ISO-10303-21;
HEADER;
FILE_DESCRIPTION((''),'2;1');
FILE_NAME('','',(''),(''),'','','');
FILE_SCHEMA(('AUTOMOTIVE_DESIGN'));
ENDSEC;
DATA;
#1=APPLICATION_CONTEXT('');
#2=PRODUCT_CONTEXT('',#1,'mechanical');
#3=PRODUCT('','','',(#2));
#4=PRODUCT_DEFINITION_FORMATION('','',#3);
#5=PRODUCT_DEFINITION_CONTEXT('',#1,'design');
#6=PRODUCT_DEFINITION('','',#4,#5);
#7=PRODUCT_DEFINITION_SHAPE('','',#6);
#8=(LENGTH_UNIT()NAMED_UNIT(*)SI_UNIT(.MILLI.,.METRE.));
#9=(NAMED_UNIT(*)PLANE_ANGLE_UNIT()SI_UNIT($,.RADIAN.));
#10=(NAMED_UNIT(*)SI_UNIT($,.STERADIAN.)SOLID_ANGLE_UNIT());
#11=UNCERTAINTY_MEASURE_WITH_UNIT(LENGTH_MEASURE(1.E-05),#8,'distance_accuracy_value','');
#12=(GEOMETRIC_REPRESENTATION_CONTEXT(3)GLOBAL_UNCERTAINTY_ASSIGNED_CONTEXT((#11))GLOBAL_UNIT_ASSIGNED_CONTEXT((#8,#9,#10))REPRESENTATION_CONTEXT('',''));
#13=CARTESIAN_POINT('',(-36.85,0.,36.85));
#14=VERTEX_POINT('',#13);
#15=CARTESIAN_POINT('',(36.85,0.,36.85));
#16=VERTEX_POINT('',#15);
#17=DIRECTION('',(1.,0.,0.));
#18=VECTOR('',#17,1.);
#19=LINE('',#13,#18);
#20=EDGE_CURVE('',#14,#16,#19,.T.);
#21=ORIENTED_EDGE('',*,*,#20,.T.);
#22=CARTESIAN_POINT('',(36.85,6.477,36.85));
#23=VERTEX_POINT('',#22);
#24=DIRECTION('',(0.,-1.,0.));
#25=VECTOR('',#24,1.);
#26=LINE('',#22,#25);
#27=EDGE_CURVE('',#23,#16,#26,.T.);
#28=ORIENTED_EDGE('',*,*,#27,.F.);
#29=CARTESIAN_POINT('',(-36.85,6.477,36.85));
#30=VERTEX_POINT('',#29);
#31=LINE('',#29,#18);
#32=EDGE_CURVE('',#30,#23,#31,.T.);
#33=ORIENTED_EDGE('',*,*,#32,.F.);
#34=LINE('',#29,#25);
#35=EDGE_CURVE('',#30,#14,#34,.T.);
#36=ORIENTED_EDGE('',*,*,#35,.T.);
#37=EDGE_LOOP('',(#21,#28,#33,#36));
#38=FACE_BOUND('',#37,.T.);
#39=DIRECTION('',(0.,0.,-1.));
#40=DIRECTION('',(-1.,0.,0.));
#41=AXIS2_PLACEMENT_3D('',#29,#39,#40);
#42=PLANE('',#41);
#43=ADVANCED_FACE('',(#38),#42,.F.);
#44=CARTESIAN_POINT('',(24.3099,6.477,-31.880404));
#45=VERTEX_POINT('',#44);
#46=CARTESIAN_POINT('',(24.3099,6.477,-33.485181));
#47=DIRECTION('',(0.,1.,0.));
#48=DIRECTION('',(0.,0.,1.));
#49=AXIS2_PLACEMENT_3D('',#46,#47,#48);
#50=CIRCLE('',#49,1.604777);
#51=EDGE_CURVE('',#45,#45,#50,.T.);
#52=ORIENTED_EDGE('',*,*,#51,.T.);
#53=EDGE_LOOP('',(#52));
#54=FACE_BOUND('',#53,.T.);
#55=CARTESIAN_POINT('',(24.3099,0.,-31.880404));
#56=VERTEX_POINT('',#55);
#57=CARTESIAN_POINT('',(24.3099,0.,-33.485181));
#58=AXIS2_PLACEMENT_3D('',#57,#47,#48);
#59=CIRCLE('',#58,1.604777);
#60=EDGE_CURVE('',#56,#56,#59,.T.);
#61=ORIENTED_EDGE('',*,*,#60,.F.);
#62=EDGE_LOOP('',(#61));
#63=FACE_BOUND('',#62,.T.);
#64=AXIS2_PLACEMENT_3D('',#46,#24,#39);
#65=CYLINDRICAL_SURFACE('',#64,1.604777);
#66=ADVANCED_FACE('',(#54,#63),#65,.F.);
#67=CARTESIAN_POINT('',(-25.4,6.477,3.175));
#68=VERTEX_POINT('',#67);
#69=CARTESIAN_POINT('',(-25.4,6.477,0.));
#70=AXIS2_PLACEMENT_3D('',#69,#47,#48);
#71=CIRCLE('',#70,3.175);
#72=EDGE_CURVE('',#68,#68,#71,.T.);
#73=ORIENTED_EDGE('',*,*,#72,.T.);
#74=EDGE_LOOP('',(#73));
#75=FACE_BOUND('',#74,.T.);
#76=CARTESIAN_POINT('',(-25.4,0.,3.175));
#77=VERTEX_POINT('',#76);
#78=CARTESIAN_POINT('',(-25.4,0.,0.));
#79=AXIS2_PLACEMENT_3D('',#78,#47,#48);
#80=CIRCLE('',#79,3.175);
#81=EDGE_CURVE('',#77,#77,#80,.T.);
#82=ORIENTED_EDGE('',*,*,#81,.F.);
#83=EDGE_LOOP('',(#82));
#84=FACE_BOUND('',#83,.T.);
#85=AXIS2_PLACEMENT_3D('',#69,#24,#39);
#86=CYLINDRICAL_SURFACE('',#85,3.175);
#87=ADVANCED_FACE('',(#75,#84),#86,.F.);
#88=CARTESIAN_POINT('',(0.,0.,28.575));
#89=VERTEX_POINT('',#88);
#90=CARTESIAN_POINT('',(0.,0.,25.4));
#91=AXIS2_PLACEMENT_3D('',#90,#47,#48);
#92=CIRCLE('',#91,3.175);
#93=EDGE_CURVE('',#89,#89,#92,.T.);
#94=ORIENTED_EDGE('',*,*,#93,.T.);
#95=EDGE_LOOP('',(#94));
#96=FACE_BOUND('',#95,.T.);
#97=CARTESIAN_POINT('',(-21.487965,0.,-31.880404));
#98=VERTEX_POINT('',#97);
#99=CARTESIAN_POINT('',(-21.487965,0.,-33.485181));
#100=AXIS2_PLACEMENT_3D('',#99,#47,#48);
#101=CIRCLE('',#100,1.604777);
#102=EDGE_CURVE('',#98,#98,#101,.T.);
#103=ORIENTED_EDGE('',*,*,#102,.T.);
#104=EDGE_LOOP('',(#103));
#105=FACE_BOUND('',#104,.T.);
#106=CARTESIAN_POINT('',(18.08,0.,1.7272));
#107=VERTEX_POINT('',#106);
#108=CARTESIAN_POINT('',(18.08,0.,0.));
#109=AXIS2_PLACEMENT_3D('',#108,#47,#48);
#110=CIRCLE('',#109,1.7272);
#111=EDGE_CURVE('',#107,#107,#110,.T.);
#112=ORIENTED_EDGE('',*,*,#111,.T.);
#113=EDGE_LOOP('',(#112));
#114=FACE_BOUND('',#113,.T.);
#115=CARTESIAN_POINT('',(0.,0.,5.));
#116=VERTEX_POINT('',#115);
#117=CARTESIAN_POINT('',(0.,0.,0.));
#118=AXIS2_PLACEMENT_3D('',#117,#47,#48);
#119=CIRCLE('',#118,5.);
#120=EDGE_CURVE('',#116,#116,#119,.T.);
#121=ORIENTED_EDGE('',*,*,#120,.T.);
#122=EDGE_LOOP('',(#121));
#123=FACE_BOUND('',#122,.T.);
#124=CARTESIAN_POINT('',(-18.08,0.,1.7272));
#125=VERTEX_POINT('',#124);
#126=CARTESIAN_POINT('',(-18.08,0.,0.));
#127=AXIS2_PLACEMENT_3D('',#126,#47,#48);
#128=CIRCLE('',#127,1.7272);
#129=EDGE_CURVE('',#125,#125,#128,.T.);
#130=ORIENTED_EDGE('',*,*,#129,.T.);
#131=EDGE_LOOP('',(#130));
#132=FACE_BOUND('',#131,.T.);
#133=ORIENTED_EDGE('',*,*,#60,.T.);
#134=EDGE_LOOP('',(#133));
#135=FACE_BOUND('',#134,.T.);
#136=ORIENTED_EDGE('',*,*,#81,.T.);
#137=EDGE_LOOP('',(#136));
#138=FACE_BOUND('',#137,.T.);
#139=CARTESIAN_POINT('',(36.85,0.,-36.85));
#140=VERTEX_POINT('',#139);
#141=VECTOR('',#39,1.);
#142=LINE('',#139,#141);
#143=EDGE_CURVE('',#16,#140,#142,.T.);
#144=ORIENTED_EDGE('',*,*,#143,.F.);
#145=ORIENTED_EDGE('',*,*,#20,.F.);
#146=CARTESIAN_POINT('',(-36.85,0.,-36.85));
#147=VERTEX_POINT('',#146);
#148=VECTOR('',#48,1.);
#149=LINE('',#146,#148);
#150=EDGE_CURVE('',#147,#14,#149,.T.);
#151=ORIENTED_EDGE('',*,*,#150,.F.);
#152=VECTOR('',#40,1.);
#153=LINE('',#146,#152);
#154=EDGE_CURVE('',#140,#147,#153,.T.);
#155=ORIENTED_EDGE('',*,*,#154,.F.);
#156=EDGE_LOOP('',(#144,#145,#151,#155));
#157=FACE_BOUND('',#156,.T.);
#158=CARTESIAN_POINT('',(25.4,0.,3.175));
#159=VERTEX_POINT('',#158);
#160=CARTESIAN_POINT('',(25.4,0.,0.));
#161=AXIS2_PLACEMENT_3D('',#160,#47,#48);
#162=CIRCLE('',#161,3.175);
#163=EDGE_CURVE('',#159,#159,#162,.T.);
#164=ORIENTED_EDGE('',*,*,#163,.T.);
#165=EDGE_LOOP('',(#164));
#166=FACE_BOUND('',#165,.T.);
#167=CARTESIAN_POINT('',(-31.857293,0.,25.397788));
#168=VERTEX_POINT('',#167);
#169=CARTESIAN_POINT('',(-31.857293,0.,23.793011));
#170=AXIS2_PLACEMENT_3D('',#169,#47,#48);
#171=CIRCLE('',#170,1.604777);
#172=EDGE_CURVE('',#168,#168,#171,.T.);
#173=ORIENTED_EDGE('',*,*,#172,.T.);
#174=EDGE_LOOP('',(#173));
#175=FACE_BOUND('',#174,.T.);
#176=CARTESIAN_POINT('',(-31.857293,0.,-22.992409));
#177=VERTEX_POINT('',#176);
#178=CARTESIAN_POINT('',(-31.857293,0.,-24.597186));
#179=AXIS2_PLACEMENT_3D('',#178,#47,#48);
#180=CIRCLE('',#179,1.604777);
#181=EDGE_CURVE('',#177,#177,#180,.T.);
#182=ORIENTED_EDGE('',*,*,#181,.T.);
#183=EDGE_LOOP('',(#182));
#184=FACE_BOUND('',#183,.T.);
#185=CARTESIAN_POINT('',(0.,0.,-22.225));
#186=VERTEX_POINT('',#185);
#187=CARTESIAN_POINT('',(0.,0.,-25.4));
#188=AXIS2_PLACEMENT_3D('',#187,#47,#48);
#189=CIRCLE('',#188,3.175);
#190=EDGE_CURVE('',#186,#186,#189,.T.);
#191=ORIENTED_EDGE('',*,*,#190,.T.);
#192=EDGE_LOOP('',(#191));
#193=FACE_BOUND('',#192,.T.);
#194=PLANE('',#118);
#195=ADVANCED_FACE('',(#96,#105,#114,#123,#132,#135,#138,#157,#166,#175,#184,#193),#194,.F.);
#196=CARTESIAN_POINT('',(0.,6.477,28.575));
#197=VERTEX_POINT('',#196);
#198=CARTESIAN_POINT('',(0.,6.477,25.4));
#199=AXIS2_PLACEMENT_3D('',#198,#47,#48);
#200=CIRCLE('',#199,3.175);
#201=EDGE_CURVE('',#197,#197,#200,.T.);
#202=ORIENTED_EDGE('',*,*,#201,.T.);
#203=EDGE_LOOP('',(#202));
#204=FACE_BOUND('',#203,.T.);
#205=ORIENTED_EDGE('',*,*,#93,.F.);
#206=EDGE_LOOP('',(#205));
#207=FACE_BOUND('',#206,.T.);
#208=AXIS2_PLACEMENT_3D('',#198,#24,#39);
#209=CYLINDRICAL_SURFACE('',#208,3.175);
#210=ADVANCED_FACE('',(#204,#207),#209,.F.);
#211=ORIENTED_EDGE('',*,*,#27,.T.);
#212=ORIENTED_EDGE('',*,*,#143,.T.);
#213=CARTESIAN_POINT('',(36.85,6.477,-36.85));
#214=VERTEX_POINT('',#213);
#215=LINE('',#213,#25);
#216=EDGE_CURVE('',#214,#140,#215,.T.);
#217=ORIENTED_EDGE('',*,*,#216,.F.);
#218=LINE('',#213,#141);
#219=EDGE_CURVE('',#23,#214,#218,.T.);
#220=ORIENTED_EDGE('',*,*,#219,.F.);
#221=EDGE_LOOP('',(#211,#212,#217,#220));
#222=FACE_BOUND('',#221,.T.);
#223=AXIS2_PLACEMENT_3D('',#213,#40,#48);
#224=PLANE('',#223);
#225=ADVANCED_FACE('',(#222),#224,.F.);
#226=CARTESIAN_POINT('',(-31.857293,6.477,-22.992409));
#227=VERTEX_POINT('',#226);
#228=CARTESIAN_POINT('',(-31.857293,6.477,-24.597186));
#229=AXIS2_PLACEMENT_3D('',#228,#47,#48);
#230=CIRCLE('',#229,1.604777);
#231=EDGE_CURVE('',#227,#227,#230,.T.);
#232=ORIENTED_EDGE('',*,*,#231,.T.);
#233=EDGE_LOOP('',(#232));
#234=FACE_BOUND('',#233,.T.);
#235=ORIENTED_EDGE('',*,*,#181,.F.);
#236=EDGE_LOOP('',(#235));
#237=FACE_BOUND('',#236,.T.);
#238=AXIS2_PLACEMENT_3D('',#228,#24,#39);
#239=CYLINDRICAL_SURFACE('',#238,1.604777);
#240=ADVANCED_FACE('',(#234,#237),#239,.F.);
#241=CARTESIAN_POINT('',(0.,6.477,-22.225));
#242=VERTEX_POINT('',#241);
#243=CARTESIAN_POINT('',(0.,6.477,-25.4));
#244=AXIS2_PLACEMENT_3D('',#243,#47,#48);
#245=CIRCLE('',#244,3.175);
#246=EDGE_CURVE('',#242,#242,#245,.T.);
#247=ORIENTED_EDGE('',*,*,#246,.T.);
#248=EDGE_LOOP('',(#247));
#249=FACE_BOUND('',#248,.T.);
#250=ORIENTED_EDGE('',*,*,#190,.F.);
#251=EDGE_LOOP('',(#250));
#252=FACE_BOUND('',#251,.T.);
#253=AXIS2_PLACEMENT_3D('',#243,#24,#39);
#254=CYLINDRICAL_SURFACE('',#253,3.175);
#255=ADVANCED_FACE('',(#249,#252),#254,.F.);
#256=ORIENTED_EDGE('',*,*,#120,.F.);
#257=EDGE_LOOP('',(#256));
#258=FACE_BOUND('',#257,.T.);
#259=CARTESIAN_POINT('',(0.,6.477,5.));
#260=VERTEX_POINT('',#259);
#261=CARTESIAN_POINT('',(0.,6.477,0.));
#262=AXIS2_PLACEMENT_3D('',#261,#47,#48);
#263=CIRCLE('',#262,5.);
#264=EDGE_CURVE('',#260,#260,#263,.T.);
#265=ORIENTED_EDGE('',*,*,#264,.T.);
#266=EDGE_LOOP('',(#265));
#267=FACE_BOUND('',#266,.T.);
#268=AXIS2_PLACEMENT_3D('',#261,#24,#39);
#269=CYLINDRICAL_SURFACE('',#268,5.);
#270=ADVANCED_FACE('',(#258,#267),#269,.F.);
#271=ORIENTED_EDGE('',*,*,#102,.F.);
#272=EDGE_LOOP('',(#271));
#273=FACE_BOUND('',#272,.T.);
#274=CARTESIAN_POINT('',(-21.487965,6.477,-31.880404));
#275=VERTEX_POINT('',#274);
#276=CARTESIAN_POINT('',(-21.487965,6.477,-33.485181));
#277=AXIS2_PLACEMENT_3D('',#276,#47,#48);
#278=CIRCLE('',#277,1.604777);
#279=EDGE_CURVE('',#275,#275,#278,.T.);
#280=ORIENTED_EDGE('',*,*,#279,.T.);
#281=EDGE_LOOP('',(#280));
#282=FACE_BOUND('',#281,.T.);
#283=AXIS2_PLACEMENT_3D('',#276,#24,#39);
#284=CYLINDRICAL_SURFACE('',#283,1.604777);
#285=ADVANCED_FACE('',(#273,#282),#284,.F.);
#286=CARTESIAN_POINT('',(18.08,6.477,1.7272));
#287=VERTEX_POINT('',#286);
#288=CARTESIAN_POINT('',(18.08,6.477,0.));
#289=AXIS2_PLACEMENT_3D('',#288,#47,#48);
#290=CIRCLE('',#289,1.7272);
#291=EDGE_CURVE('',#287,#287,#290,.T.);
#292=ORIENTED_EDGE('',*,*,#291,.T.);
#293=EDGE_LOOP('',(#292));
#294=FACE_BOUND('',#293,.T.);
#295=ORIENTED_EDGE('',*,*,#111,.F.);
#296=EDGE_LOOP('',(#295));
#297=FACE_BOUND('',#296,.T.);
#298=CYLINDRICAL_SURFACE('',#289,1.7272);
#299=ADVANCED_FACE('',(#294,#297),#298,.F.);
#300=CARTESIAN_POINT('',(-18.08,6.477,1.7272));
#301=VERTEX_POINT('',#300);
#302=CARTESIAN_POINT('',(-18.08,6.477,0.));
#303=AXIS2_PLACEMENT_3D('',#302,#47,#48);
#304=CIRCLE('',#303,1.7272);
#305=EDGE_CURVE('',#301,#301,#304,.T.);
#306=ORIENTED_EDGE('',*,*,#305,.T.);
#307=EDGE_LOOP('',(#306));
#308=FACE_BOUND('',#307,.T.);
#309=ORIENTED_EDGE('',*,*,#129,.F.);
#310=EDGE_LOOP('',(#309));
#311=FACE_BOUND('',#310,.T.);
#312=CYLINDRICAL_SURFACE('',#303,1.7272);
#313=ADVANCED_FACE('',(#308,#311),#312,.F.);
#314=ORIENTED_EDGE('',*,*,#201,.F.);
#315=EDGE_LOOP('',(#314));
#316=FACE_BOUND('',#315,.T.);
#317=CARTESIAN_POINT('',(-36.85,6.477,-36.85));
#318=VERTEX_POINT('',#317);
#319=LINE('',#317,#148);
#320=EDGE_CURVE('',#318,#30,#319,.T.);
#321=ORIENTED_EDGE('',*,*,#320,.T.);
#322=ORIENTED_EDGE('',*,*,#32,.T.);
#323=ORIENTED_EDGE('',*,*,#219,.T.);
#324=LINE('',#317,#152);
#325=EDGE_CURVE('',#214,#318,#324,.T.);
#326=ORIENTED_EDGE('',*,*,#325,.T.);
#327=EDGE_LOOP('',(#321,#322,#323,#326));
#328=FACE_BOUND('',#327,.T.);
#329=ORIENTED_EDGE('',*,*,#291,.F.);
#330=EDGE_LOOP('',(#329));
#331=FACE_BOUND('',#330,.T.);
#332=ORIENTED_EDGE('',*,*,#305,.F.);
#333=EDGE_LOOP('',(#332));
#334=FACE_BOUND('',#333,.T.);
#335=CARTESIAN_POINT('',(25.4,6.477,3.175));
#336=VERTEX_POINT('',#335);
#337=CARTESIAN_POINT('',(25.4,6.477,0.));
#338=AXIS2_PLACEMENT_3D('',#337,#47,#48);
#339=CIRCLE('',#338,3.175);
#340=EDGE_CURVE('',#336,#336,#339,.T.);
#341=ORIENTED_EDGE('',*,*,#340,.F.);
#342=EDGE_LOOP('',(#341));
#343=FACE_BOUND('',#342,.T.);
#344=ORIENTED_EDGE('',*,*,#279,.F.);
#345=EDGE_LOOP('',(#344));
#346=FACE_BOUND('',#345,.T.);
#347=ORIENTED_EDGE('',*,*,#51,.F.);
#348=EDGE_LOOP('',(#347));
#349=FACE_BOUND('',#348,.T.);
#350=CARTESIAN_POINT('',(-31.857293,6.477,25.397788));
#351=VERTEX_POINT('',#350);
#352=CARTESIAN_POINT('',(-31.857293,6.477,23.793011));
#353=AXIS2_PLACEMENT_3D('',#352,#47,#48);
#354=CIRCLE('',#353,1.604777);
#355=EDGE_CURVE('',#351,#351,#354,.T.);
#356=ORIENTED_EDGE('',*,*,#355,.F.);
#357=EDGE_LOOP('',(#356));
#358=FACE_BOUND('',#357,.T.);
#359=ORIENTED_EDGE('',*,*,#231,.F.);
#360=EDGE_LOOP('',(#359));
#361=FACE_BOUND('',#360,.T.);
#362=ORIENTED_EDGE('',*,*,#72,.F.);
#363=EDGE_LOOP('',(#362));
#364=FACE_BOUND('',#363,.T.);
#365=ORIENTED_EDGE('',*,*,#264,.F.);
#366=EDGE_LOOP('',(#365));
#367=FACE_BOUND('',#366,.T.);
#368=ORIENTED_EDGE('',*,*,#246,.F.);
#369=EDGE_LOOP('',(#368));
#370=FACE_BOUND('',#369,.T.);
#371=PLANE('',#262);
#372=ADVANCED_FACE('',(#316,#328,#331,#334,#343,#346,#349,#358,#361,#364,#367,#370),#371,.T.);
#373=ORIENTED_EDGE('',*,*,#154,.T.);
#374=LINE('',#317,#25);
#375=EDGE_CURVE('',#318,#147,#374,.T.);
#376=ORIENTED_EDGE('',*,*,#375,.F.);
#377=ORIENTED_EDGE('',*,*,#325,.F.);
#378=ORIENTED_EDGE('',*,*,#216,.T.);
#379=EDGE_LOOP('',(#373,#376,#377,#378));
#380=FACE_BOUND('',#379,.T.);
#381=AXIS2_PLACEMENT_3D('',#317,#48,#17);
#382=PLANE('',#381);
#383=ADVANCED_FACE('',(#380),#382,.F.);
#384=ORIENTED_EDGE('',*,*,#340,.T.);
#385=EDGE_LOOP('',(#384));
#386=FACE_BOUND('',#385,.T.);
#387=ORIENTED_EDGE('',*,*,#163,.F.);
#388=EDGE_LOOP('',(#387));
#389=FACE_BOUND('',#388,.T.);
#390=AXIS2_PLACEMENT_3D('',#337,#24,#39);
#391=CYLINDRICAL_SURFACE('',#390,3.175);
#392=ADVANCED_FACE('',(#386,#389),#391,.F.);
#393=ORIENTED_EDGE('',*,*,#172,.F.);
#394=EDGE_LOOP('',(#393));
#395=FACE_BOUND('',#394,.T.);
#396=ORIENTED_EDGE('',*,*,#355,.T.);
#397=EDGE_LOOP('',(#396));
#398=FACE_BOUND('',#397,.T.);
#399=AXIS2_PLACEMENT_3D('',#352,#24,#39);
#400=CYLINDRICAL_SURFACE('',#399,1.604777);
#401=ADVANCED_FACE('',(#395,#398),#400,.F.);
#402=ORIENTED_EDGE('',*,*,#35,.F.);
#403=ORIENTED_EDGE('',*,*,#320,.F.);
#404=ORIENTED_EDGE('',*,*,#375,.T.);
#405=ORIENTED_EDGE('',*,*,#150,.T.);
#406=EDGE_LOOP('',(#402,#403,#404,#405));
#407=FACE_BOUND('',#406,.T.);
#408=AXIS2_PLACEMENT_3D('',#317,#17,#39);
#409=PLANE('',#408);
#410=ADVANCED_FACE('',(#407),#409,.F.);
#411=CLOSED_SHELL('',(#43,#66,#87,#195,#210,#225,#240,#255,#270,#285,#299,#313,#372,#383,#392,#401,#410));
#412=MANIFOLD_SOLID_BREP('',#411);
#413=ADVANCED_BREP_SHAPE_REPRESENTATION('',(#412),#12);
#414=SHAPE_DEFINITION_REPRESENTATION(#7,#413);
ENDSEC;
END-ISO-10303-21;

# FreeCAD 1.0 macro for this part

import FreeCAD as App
import Part
import Sketcher
from FreeCAD import Vector
Q = App.Units.Quantity

doc = App.newDocument("Part")
body = doc.addObject("PartDesign::Body", "Body")

# Sketch on XZ plane
sketch1 = body.newObject("Sketcher::SketchObject", "Sketch")
sketch1.AttachmentSupport = (doc.getObject("XZ_Plane"), [""])
sketch1.MapMode = "FlatFace"
sketch1.addGeometry([
    Part.LineSegment(Vector(-36.85, -36.85, 0), Vector(-36.85, 36.85, 0)),  # 0
    Part.LineSegment(Vector(-36.85, 36.85, 0), Vector(36.85, 36.85, 0)),  # 1
    Part.LineSegment(Vector(36.85, 36.85, 0), Vector(36.85, -36.85, 0)),  # 2
    Part.LineSegment(Vector(36.85, -36.85, 0), Vector(-36.85, -36.85, 0)),  # 3
    Part.Circle(Vector(-31.857293, 23.793011, 0), Vector(0, 0, 1), 1.604777),  # 4
    Part.Circle(Vector(-25.4, 0, 0), Vector(0, 0, 1), 3.175),  # 5
    Part.Circle(Vector(0, 25.4, 0), Vector(0, 0, 1), 3.175),  # 6
    Part.Circle(Vector(0, 0, 0), Vector(0, 0, 1), 5),  # 7
    Part.Circle(Vector(25.4, 0, 0), Vector(0, 0, 1), 3.175),  # 8
    Part.Circle(Vector(-31.857293, -24.597186, 0), Vector(0, 0, 1), 1.604777),  # 9
    Part.Circle(Vector(-21.487965, -33.485181, 0), Vector(0, 0, 1), 1.604777),  # 10
    Part.Circle(Vector(0, -25.4, 0), Vector(0, 0, 1), 3.175),  # 11
    Part.Circle(Vector(24.3099, -33.485181, 0), Vector(0, 0, 1), 1.604777),  # 12
], False)
sketch1.addConstraint([
    Sketcher.Constraint("Coincident", 0, 2, 1, 1),
    Sketcher.Constraint("Coincident", 1, 2, 2, 1),
    Sketcher.Constraint("Coincident", 2, 2, 3, 1),
    Sketcher.Constraint("Coincident", 3, 2, 0, 1),
    Sketcher.Constraint("Vertical", 0),
    Sketcher.Constraint("Horizontal", 1),
    Sketcher.Constraint("Vertical", 2),
    Sketcher.Constraint("Horizontal", 3),
    Sketcher.Constraint("Coincident", 7, 3, -1, 1),
    Sketcher.Constraint("Equal", 5, 6),
    Sketcher.Constraint("Equal", 6, 8),
    Sketcher.Constraint("Equal", 4, 9),
    Sketcher.Constraint("Equal", 9, 10),
    Sketcher.Constraint("Equal", 8, 11),
    Sketcher.Constraint("Equal", 10, 12),
    Sketcher.Constraint("Symmetric", 5, 3, 8, 3, -1, 1),
    Sketcher.Constraint("Symmetric", 6, 3, 11, 3, -1, 1),
    Sketcher.Constraint("Symmetric", 0, 2, 2, 2, -1, 1),
    Sketcher.Constraint("PointOnObject", 5, 3, -1),
    Sketcher.Constraint("PointOnObject", 6, 3, -2),
    Sketcher.Constraint("Horizontal", 10, 3, 12, 3),
    Sketcher.Constraint("Vertical", 4, 3, 9, 3),
    Sketcher.Constraint("Equal", 3, 0),
    Sketcher.Constraint("Diameter", 5, Q("0.25 in")),
    Sketcher.Constraint("DistanceX", 5, 3, -1, 1, Q("1 in")),
    Sketcher.Constraint("DistanceY", -1, 1, 6, 3, Q("1 in")),
    Sketcher.Constraint("Diameter", 7, 10.0),
    Sketcher.Constraint("Diameter", 4, 3.209554),
    Sketcher.Constraint("DistanceX", 1, 1, 1, 2, 73.7),
    Sketcher.Constraint("DistanceX", -1, 1, 12, 3, 24.3099),
    Sketcher.Constraint("DistanceY", -1, 1, 4, 3, 23.793011),
    Sketcher.Constraint("DistanceY", 10, 3, -1, 1, 33.485181),
    Sketcher.Constraint("DistanceX", 4, 3, -1, 1, 31.857293),
    Sketcher.Constraint("DistanceY", 9, 3, -1, 1, 24.597186),
    Sketcher.Constraint("DistanceX", 10, 3, -1, 1, 21.487965),
])
pad1 = body.newObject("PartDesign::Pad", "Pad")
pad1.Profile = sketch1
pad1.Length = Q("0.255 in")
pad1.Reversed = True

# Sketch on XZ plane
sketch2 = body.newObject("Sketcher::SketchObject", "Sketch001")
sketch2.AttachmentSupport = (doc.getObject("XZ_Plane"), [""])
sketch2.MapMode = "FlatFace"
sketch2.AttachmentOffset = App.Placement(Vector(0, 0, -0.255 * 25.4), App.Rotation())
sketch2.addGeometry([
    Part.Circle(Vector(-18.08, 0, 0), Vector(0, 0, 1), 1.7272),
    Part.Circle(Vector(18.08, 0, 0), Vector(0, 0, 1), 1.7272),
], False)
sketch2.addConstraint([
    Sketcher.Constraint("Equal", 0, 1),
    Sketcher.Constraint("Symmetric", 0, 3, 1, 3, -1, 1),
    Sketcher.Constraint("PointOnObject", 0, 3, -1),
    Sketcher.Constraint("Diameter", 0, Q("0.136 in")),
    Sketcher.Constraint("DistanceX", 0, 3, -1, 1, 18.08),
])
doc.recompute()
hole = body.newObject("PartDesign::Hole", "Hole")
hole.Profile = sketch2
hole.ThreadType = "None"
hole.Diameter = Q("0.136 in")
hole.DepthType = "ThroughAll"
hole.Reversed = True

doc.recompute()
